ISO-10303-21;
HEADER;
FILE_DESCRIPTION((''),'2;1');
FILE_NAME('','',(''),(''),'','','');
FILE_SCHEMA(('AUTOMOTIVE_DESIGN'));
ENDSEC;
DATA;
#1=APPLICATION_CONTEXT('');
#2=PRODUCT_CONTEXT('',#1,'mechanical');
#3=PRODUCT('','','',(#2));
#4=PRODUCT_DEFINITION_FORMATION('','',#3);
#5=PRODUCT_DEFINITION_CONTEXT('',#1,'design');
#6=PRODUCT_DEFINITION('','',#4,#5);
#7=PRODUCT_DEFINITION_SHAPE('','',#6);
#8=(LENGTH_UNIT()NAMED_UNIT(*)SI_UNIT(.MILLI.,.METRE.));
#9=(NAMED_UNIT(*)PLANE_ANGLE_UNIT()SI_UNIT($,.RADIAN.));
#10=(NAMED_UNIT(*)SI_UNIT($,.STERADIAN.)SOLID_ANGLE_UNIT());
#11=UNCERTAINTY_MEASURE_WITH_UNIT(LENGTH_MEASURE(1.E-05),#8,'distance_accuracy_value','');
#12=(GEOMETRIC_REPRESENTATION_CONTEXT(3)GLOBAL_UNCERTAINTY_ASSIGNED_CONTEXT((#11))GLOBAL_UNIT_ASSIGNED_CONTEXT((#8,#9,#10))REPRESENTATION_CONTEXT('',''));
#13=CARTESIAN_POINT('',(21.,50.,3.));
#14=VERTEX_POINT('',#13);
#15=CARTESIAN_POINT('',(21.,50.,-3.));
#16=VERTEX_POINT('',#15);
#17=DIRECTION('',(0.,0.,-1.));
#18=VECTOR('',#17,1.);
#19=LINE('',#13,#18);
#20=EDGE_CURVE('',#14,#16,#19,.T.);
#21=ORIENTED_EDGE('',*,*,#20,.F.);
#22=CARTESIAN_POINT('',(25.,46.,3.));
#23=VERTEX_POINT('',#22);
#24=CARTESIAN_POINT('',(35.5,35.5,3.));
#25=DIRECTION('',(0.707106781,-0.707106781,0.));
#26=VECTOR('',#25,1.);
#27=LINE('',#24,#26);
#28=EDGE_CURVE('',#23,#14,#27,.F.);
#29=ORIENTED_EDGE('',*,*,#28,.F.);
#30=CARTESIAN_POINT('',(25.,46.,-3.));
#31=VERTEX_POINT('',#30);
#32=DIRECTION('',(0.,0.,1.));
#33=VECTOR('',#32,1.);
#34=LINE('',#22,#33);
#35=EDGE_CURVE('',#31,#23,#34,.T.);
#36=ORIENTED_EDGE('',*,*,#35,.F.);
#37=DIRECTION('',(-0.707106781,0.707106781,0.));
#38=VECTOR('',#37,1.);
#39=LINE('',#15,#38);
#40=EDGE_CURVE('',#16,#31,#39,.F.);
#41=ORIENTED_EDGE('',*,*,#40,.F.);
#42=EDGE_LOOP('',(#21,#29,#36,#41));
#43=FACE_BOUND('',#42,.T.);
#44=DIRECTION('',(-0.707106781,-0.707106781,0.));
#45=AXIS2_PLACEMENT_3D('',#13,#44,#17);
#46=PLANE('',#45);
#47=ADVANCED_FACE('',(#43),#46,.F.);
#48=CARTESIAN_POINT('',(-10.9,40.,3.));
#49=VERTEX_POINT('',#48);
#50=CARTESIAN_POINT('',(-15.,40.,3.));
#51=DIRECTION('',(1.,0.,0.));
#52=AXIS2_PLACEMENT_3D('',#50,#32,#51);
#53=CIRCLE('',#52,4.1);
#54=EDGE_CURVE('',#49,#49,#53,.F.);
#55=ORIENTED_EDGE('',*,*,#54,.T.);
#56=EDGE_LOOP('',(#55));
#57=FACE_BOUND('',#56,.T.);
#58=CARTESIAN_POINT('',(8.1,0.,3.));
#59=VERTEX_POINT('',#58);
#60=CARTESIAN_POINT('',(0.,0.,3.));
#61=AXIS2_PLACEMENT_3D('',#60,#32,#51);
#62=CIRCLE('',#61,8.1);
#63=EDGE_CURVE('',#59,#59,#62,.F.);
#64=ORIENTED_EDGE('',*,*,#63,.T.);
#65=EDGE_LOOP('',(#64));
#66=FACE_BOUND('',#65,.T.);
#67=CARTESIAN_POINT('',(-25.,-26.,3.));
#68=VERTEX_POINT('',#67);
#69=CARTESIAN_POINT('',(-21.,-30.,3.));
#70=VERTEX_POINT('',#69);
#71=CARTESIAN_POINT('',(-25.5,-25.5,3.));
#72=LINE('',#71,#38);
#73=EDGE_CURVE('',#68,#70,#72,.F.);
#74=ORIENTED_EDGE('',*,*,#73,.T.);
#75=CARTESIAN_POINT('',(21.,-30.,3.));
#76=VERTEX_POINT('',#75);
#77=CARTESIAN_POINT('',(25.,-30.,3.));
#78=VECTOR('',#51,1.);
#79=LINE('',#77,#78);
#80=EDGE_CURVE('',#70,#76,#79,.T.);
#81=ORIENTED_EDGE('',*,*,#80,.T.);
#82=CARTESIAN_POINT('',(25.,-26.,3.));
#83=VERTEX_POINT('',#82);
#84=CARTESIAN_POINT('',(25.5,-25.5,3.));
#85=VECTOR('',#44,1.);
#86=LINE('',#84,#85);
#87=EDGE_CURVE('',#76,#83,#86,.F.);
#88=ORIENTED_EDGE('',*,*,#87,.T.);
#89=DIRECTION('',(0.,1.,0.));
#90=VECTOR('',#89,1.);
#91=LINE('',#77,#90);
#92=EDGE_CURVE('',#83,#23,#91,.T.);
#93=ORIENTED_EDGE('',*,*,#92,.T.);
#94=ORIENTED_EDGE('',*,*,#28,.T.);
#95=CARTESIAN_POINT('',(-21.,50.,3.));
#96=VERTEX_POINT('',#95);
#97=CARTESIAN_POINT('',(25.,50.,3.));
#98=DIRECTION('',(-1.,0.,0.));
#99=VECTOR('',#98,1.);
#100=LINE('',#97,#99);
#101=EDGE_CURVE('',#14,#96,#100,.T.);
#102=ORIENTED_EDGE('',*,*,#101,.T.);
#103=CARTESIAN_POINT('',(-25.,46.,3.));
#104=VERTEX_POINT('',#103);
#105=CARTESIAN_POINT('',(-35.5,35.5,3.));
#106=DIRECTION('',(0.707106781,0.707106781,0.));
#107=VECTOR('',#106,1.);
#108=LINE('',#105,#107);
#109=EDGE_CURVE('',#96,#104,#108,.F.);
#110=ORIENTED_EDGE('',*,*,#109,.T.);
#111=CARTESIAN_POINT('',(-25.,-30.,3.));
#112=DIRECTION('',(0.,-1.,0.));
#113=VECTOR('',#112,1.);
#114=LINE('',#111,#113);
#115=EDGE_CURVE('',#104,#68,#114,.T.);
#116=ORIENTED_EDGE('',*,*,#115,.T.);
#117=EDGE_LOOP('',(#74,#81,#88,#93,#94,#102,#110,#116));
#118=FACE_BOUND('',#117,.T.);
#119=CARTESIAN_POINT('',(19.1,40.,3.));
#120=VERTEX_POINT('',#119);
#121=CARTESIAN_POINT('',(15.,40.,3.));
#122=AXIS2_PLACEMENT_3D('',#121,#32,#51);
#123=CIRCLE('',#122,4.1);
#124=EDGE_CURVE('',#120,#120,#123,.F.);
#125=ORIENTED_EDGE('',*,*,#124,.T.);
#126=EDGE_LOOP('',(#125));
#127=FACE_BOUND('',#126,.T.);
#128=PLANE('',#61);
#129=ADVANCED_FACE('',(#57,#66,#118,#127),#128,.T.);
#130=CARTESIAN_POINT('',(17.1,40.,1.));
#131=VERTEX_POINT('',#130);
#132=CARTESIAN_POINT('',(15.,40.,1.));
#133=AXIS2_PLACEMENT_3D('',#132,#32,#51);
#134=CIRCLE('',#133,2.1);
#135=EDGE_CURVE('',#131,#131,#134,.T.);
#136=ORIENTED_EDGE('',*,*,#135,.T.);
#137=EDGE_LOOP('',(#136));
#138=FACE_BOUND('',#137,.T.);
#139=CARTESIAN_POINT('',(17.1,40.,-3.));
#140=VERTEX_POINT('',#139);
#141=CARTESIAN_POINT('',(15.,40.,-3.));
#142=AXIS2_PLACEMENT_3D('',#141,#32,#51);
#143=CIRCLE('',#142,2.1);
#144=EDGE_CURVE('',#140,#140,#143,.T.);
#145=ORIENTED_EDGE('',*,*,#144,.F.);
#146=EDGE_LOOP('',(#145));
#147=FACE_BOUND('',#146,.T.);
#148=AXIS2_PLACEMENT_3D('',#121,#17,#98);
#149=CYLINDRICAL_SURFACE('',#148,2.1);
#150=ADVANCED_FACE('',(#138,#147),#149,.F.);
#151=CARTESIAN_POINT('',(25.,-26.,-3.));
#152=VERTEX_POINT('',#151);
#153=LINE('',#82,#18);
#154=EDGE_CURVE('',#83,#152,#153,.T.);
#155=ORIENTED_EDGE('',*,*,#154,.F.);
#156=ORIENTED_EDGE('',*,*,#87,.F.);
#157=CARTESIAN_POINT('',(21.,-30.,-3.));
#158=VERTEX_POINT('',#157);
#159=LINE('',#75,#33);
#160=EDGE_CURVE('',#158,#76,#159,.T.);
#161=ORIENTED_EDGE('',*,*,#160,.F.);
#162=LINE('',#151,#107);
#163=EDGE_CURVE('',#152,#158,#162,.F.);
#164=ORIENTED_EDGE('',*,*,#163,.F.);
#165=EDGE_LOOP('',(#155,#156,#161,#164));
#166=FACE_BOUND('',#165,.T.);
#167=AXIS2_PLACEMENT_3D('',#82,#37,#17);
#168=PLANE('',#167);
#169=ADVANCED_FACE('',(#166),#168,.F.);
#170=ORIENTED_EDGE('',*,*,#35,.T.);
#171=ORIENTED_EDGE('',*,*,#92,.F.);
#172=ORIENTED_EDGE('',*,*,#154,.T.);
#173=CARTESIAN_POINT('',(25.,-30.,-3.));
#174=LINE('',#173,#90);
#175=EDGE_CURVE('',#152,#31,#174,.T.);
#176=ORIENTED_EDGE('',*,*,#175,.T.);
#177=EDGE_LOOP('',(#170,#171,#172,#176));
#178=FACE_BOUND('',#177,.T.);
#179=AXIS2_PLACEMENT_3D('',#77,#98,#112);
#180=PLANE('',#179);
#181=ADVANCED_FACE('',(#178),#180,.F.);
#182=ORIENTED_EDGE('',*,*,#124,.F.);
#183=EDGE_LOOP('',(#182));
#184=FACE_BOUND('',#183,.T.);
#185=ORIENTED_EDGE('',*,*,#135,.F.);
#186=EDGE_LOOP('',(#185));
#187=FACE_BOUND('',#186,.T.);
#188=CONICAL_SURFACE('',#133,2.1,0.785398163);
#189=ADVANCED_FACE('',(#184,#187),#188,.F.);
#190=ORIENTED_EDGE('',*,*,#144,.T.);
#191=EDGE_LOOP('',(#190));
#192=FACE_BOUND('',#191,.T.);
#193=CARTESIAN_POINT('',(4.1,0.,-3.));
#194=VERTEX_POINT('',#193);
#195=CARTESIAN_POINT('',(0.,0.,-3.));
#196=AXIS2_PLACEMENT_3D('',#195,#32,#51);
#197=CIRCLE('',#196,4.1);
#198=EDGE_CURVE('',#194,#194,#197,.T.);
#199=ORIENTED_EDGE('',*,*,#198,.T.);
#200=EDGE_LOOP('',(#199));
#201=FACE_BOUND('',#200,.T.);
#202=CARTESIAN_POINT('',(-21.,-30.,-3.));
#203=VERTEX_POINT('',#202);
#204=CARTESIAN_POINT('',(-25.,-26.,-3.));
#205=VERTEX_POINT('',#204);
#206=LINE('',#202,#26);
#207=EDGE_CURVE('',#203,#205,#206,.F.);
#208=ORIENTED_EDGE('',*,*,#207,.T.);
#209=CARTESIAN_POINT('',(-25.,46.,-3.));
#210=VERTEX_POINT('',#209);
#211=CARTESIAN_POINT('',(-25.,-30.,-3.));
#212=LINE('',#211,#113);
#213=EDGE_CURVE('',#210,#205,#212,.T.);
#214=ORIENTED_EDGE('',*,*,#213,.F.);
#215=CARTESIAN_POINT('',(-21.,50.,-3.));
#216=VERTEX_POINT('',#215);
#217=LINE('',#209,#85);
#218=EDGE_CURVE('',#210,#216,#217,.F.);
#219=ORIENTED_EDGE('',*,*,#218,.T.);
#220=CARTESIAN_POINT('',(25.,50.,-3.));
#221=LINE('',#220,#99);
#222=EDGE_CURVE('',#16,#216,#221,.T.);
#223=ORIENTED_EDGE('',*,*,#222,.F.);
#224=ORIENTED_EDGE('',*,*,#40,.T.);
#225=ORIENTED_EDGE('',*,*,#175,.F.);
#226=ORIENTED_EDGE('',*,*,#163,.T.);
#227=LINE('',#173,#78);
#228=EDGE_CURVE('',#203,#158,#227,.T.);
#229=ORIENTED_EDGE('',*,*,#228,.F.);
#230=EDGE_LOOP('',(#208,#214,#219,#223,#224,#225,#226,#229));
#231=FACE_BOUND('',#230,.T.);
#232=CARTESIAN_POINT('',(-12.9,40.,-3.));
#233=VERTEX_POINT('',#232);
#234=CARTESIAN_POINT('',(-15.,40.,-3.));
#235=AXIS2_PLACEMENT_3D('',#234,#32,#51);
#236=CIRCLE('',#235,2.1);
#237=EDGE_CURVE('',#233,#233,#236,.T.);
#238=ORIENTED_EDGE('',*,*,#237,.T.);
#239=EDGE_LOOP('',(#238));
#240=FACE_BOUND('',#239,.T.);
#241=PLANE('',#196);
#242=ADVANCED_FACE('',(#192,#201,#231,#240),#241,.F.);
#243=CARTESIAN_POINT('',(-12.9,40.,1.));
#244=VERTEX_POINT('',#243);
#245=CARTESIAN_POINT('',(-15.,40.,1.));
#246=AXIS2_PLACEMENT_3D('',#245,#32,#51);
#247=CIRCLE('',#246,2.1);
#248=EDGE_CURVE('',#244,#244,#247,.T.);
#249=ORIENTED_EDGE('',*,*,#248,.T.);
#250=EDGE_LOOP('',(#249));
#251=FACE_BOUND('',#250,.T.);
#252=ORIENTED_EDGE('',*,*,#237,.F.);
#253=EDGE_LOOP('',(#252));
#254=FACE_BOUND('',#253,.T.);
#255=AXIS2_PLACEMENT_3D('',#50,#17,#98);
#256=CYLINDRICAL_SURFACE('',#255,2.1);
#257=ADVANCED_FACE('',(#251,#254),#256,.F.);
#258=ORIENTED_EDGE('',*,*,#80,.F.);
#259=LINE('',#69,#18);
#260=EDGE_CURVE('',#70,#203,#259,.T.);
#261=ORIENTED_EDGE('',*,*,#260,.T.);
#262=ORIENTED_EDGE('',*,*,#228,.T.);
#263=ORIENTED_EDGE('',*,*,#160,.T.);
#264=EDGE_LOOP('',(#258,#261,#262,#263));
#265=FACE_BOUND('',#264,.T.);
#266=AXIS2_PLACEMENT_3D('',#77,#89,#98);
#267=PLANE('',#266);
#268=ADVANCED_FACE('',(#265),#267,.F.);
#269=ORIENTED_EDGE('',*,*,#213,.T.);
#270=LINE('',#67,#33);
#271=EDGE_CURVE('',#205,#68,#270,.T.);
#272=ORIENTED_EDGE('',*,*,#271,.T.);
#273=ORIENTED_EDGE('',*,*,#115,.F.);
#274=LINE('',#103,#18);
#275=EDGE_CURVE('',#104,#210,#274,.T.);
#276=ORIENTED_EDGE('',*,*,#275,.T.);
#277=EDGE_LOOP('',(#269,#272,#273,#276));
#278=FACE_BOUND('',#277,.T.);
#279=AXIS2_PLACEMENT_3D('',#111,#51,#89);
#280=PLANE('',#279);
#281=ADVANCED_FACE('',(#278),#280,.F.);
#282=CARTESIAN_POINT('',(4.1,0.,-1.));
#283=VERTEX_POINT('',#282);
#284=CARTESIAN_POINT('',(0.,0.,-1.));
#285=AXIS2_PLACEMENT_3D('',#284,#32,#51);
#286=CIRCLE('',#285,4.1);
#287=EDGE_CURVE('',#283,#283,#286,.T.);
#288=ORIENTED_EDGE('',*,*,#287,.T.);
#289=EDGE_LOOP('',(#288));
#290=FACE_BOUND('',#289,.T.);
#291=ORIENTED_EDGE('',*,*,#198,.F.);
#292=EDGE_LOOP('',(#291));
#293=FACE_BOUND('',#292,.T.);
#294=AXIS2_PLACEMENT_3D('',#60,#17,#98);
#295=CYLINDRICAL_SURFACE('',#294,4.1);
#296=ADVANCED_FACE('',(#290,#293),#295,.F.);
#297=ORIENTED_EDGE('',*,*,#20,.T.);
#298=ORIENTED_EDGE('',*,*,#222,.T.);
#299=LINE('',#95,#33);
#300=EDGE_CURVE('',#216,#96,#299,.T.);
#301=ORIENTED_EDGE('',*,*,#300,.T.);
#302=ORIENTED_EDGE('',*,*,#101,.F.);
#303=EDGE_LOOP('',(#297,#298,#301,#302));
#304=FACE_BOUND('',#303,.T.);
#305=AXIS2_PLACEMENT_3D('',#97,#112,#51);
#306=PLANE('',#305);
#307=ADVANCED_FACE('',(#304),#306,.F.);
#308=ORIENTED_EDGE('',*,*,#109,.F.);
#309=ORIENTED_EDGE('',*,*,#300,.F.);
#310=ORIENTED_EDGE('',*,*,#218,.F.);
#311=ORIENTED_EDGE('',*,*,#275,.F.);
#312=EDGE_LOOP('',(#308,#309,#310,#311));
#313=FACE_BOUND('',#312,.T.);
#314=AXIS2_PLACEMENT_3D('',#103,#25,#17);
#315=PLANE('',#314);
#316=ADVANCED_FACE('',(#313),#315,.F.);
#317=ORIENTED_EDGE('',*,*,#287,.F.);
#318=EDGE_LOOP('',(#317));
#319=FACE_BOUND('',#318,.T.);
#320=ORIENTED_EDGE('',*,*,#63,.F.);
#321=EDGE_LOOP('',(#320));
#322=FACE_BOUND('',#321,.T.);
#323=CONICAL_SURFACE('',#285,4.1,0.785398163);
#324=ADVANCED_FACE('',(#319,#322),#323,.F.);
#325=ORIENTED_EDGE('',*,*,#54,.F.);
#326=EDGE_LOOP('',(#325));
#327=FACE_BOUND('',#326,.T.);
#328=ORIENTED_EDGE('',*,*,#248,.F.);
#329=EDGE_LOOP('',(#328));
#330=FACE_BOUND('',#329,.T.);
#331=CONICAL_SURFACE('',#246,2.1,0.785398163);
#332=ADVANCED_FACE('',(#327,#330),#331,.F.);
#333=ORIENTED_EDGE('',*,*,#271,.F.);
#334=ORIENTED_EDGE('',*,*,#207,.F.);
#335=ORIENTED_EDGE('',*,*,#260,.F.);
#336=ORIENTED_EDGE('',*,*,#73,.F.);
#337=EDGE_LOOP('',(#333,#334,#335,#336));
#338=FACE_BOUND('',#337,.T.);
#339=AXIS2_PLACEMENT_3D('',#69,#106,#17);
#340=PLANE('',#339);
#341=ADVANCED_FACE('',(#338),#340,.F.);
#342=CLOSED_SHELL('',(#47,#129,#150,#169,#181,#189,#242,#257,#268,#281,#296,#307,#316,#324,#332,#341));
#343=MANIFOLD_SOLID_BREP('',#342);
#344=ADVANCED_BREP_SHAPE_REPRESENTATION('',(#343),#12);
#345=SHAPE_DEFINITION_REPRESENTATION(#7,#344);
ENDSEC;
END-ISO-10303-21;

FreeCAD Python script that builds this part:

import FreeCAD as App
import Part
import Sketcher

V = App.Vector
Q = App.Units.Quantity


def edges_at(feature, points):
    """Names of the edges that pass closest to the given points."""
    edges = feature.Shape.Edges
    near = lambda p: min(range(len(edges)), key=lambda i: edges[i].distToShape(Part.Vertex(*p))[0])
    return sorted({f"Edge{near(p) + 1}" for p in points})


def add_polygon(sketch, points):
    """Adds a closed chain of lines whose ends are joined by coincident constraints."""
    first, n = sketch.GeometryCount, len(points)
    for a, b in zip(points, points[1:] + points[:1]):
        sketch.addGeometry(Part.LineSegment(App.Vector(*a, 0), App.Vector(*b, 0)), False)
    for i in range(n):
        sketch.addConstraint(Sketcher.Constraint("Coincident", first + i, 2, first + (i + 1) % n, 1))

doc = App.newDocument("Part")
params = doc.addObject("Spreadsheet::Sheet", "Params")
for row, (alias, value) in enumerate([
    ("sketch1_diameter", "8.2 mm"),
    ("sketch1_diameter2", "4.2 mm"),
    ("sketch1_width", "50 mm"),
    ("sketch1_height", "80 mm"),
    ("pad1_length", "6 mm"),
    ("chamfer_size", "4 mm"),
    ("chamfer2_size", "2 mm"),
], start=1):
    params.set(f"A{row}", alias)
    params.set(f"B{row}", "=" + value)
    params.setAlias(f"B{row}", alias)

body = doc.addObject("PartDesign::Body", "Body")

# Sketch on XY plane
sketch1 = body.newObject("Sketcher::SketchObject", "Sketch")
sketch1.AttachmentSupport = (doc.getObject("XY_Plane"), [""])
sketch1.MapMode = "FlatFace"
add_polygon(sketch1, [(-25, 50), (-25, -30), (25, -30), (25, 50)])  # lines 0-3
sketch1.addGeometry(Part.Circle(V(0, 0, 0), V(0, 0, 1), 4.1), False)  # 4
sketch1.addGeometry(Part.Circle(V(-15, 40, 0), V(0, 0, 1), 2.1), False)  # 5
sketch1.addGeometry(Part.Circle(V(15, 40, 0), V(0, 0, 1), 2.1), False)  # 6
sketch1.addConstraint(Sketcher.Constraint("Vertical", 0))
sketch1.addConstraint(Sketcher.Constraint("Horizontal", 1))
sketch1.addConstraint(Sketcher.Constraint("Vertical", 2))
sketch1.addConstraint(Sketcher.Constraint("Horizontal", 3))
sketch1.addConstraint(Sketcher.Constraint("Coincident", 4, 3, -1, 1))
sketch1.addConstraint(Sketcher.Constraint("Equal", 5, 6))
sketch1.addConstraint(Sketcher.Constraint("Symmetric", 5, 3, 6, 3, -2))
sketch1.addConstraint(Sketcher.Constraint("Diameter", 4, Q("8.2 mm")))
sketch1.addConstraint(Sketcher.Constraint("Diameter", 5, Q("4.2 mm")))
sketch1.addConstraint(Sketcher.Constraint("DistanceX", 1, 1, 1, 2, Q("50 mm")))
sketch1.addConstraint(Sketcher.Constraint("DistanceY", 0, 2, 0, 1, Q("80 mm")))
sketch1.addConstraint(Sketcher.Constraint("DistanceX", 5, 3, -1, 1, Q("15 mm")))
sketch1.addConstraint(Sketcher.Constraint("DistanceY", -1, 1, 5, 3, Q("40 mm")))
sketch1.addConstraint(Sketcher.Constraint("DistanceX", 0, 2, -1, 1, Q("25 mm")))
sketch1.addConstraint(Sketcher.Constraint("DistanceY", 0, 2, -1, 1, Q("30 mm")))
sketch1.setExpression("Constraints[11]", "Params.sketch1_diameter")
sketch1.setExpression("Constraints[12]", "Params.sketch1_diameter2")
sketch1.setExpression("Constraints[13]", "Params.sketch1_width")
sketch1.setExpression("Constraints[14]", "Params.sketch1_height")
pad1 = body.newObject("PartDesign::Pad", "Pad")
pad1.Profile = sketch1
pad1.setExpression("Length", "Params.pad1_length")
pad1.Midplane = True
doc.recompute()

chamfer = body.newObject("PartDesign::Chamfer", "Chamfer")
chamfer.Base = (pad1, edges_at(pad1, [
    (-4.1, 0, 3),
    (-25, 50, 0),
    (25, 50, 0),
    (25, -30, 0),
    (-25, -30, 0),
]))
chamfer.setExpression("Size", "Params.chamfer_size")
doc.recompute()

chamfer2 = body.newObject("PartDesign::Chamfer", "Chamfer001")
chamfer2.Base = (chamfer, edges_at(chamfer, [(-17.1, 40, 3), (12.9, 40, 3)]))
chamfer2.setExpression("Size", "Params.chamfer2_size")

doc.recompute()
